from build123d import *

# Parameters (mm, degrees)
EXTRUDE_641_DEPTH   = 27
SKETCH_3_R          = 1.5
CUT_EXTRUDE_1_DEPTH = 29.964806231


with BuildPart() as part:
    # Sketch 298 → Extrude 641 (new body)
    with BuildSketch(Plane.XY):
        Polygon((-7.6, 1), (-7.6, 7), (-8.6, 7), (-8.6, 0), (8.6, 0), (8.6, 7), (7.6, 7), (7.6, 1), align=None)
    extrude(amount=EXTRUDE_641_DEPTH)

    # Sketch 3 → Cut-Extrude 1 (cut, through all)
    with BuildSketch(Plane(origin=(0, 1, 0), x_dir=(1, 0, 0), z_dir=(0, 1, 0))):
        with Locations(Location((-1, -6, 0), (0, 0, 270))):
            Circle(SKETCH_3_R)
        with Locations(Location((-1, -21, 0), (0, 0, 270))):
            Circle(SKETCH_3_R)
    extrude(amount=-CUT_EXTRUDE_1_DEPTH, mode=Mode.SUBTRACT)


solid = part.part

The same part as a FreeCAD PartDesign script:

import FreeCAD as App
import Part
import Sketcher
from FreeCAD import Vector


def add_polygon(sketch, points):
    """Adds a closed chain of lines whose ends are joined by coincident constraints."""
    first, n = sketch.GeometryCount, len(points)
    for a, b in zip(points, points[1:] + points[:1]):
        sketch.addGeometry(Part.LineSegment(App.Vector(*a, 0), App.Vector(*b, 0)), False)
    for i in range(n):
        sketch.addConstraint(Sketcher.Constraint("Coincident", first + i, 2, first + (i + 1) % n, 1))

doc = App.newDocument("Part")
body = doc.addObject("PartDesign::Body", "Body")

# Sketch on XY plane
sketch1 = body.newObject("Sketcher::SketchObject", "Sketch")
sketch1.AttachmentSupport = (doc.getObject("XY_Plane"), [""])
sketch1.MapMode = "FlatFace"
add_polygon(sketch1, [(-7.6, 1), (-7.6, 7), (-8.6, 7), (-8.6, 0), (8.6, 0), (8.6, 7), (7.6, 7), (7.6, 1)])  # lines 0-7
sketch1.addConstraint([
    Sketcher.Constraint("Vertical", 0),
    Sketcher.Constraint("Horizontal", 1),
    Sketcher.Constraint("Vertical", 2),
    Sketcher.Constraint("Horizontal", 3),
    Sketcher.Constraint("Vertical", 4),
    Sketcher.Constraint("Horizontal", 5),
    Sketcher.Constraint("Vertical", 6),
    Sketcher.Constraint("Horizontal", 7),
    Sketcher.Constraint("Symmetric", 2, 2, 3, 2, -1, 1),
    Sketcher.Constraint("Symmetric", 0, 2, 5, 2, -2),
    Sketcher.Constraint("DistanceX", 1, 2, 1, 1, 1.0),
    Sketcher.Constraint("DistanceY", 0, 1, 0, 2, 6.0),
    Sketcher.Constraint("DistanceY", 2, 2, 2, 1, 7.0),
    Sketcher.Constraint("DistanceX", 3, 1, 3, 2, 17.2),
])
pad1 = body.newObject("PartDesign::Pad", "Pad")
pad1.Profile = sketch1
pad1.Length = 27

# Sketch on XZ plane
sketch2 = body.newObject("Sketcher::SketchObject", "Sketch001")
sketch2.AttachmentSupport = (doc.getObject("XZ_Plane"), [""])
sketch2.MapMode = "FlatFace"
sketch2.AttachmentOffset = App.Placement(Vector(0, 0, -1), App.Rotation())
sketch2.addGeometry([
    Part.Circle(Vector(-1, 6, 0), Vector(0, 0, 1), 1.5),
    Part.Circle(Vector(-1, 21, 0), Vector(0, 0, 1), 1.5),
], False)
sketch2.addConstraint([
    Sketcher.Constraint("Equal", 0, 1),
    Sketcher.Constraint("Vertical", 0, 3, 1, 3),
    Sketcher.Constraint("Diameter", 0, 3.0),
    Sketcher.Constraint("DistanceX", 0, 3, -1, 1, 1.0),
    Sketcher.Constraint("DistanceY", -1, 1, 0, 3, 6.0),
    Sketcher.Constraint("DistanceY", -1, 1, 1, 3, 21.0),
])
pocket1 = body.newObject("PartDesign::Pocket", "Pocket")
pocket1.Profile = sketch2
pocket1.Type = "ThroughAll"
pocket1.Reversed = True

doc.recompute()
